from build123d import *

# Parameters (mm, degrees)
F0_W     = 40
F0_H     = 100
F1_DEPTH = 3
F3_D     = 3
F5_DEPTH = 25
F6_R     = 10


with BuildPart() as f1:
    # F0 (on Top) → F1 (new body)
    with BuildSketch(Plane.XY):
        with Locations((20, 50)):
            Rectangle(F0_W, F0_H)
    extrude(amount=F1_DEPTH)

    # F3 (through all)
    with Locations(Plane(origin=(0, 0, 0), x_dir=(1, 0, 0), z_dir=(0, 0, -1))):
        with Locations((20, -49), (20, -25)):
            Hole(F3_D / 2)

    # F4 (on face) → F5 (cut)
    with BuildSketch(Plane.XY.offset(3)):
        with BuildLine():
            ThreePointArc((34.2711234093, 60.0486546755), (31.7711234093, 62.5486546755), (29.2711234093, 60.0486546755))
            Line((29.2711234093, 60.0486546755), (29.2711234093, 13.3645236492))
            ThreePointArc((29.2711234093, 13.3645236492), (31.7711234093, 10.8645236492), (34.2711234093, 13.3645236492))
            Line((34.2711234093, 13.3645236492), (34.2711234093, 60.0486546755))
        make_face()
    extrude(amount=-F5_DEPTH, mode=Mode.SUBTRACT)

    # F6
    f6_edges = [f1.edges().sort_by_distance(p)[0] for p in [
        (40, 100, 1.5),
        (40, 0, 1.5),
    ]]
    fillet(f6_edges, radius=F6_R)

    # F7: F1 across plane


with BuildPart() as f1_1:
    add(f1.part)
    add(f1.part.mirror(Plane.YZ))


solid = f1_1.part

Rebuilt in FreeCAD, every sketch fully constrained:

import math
import FreeCAD as App
import Part
import Sketcher


def edges_at(feature, points):
    """Names of the edges that pass closest to the given points."""
    edges = feature.Shape.Edges
    near = lambda p: min(range(len(edges)), key=lambda i: edges[i].distToShape(Part.Vertex(*p))[0])
    return sorted({f"Edge{near(p) + 1}" for p in points})

doc = App.newDocument("Part")
body = doc.addObject("PartDesign::Body", "Body")

# Sketch on XY plane
sketch1 = body.newObject("Sketcher::SketchObject", "Sketch")
sketch1.AttachmentSupport = (doc.getObject("XY_Plane"), [""])
sketch1.MapMode = "FlatFace"
sketch1.addGeometry(Part.LineSegment(App.Vector(0, 100, 0), App.Vector(0, 0, 0)), False)
sketch1.addGeometry(Part.LineSegment(App.Vector(0, 0, 0), App.Vector(40, 0, 0)), False)
sketch1.addGeometry(Part.LineSegment(App.Vector(40, 0, 0), App.Vector(40, 100, 0)), False)
sketch1.addGeometry(Part.LineSegment(App.Vector(40, 100, 0), App.Vector(0, 100, 0)), False)
sketch1.addConstraint(Sketcher.Constraint("Coincident", 0, 2, 1, 1))
sketch1.addConstraint(Sketcher.Constraint("Coincident", 1, 2, 2, 1))
sketch1.addConstraint(Sketcher.Constraint("Coincident", 2, 2, 3, 1))
sketch1.addConstraint(Sketcher.Constraint("Coincident", 3, 2, 0, 1))
sketch1.addConstraint(Sketcher.Constraint("Vertical", 0))
sketch1.addConstraint(Sketcher.Constraint("Horizontal", 1))
sketch1.addConstraint(Sketcher.Constraint("Vertical", 2))
sketch1.addConstraint(Sketcher.Constraint("Horizontal", 3))
sketch1.addConstraint(Sketcher.Constraint("Coincident", 0, 2, -1, 1))
sketch1.addConstraint(Sketcher.Constraint("DistanceX", 1, 1, 1, 2, 40.0))
sketch1.addConstraint(Sketcher.Constraint("DistanceY", 0, 2, 0, 1, 100.0))
pad1 = body.newObject("PartDesign::Pad", "Pad")
pad1.Profile = sketch1
pad1.Length = 3

# Sketch on XY plane
sketch2 = body.newObject("Sketcher::SketchObject", "Sketch001")
sketch2.AttachmentSupport = (doc.getObject("XY_Plane"), [""])
sketch2.MapMode = "FlatFace"
sketch2.addGeometry(Part.Circle(App.Vector(20, 49, 0), App.Vector(0, 0, 1), 1.5), False)
sketch2.addGeometry(Part.Circle(App.Vector(20, 25, 0), App.Vector(0, 0, 1), 1.5), False)
sketch2.addConstraint(Sketcher.Constraint("Equal", 0, 1))
sketch2.addConstraint(Sketcher.Constraint("Vertical", 0, 3, 1, 3))
sketch2.addConstraint(Sketcher.Constraint("Diameter", 0, 3.0))
sketch2.addConstraint(Sketcher.Constraint("DistanceX", -1, 1, 0, 3, 20.0))
sketch2.addConstraint(Sketcher.Constraint("DistanceY", -1, 1, 0, 3, 49.0))
sketch2.addConstraint(Sketcher.Constraint("DistanceY", -1, 1, 1, 3, 25.0))
doc.recompute()
hole = body.newObject("PartDesign::Hole", "Hole")
hole.Profile = sketch2
hole.ThreadType = "None"
hole.Diameter = 3
hole.DepthType = "ThroughAll"
hole.Reversed = True

# Sketch on XY plane
sketch3 = body.newObject("Sketcher::SketchObject", "Sketch002")
sketch3.AttachmentSupport = (doc.getObject("XY_Plane"), [""])
sketch3.MapMode = "FlatFace"
sketch3.AttachmentOffset = App.Placement(App.Vector(0, 0, 3), App.Rotation())
sketch3.addGeometry(Part.ArcOfCircle(Part.Circle(App.Vector(31.8, 60, 0), App.Vector(0, 0, 1), 2.5), math.radians(0), math.radians(180)), False)
sketch3.addGeometry(Part.LineSegment(App.Vector(29.3, 60, 0), App.Vector(29.3, 13.4, 0)), False)
sketch3.addGeometry(Part.ArcOfCircle(Part.Circle(App.Vector(31.8, 13.4, 0), App.Vector(0, 0, 1), 2.5), math.radians(180), math.radians(360)), False)
sketch3.addGeometry(Part.LineSegment(App.Vector(34.3, 13.4, 0), App.Vector(34.3, 60, 0)), False)
sketch3.addConstraint(Sketcher.Constraint("Tangent", 0, 2, 1, 1))
sketch3.addConstraint(Sketcher.Constraint("Tangent", 1, 2, 2, 1))
sketch3.addConstraint(Sketcher.Constraint("Tangent", 2, 2, 3, 1))
sketch3.addConstraint(Sketcher.Constraint("Tangent", 3, 2, 0, 1))
sketch3.addConstraint(Sketcher.Constraint("Vertical", 1))
sketch3.addConstraint(Sketcher.Constraint("Vertical", 3))
sketch3.addConstraint(Sketcher.Constraint("Radius", 0, 2.5))
sketch3.addConstraint(Sketcher.Constraint("DistanceY", 1, 2, 1, 1, 46.684131))
sketch3.addConstraint(Sketcher.Constraint("DistanceX", -1, 1, 0, 3, 31.771123))
sketch3.addConstraint(Sketcher.Constraint("DistanceY", -1, 1, 0, 3, 60.048655))
pocket1 = body.newObject("PartDesign::Pocket", "Pocket")
pocket1.Profile = sketch3
pocket1.Length = 25
doc.recompute()

fillet = body.newObject("PartDesign::Fillet", "Fillet")
fillet.Base = (pocket1, edges_at(pocket1, [(40, 100, 1.5), (40, 0, 1.5)]))
fillet.Radius = 10
body2 = doc.addObject("PartDesign::Body", "Body001")
doc.recompute()

body2.BaseFeature = body
doc.recompute()

mirroring = doc.addObject("Part::Mirroring", "Mirroring")
mirroring.Source = body
mirroring.Base = App.Vector(0, 0, 0)
mirroring.Normal = App.Vector(1, 0, 0)
body3 = doc.addObject("PartDesign::Body", "Body002")
body3.BaseFeature = mirroring
boolean = body2.newObject("PartDesign::Boolean", "Boolean")
boolean.Type = "Fuse"
boolean.addObjects([body3])
doc.recompute()
mirroring.Visibility = False

doc.recompute()
